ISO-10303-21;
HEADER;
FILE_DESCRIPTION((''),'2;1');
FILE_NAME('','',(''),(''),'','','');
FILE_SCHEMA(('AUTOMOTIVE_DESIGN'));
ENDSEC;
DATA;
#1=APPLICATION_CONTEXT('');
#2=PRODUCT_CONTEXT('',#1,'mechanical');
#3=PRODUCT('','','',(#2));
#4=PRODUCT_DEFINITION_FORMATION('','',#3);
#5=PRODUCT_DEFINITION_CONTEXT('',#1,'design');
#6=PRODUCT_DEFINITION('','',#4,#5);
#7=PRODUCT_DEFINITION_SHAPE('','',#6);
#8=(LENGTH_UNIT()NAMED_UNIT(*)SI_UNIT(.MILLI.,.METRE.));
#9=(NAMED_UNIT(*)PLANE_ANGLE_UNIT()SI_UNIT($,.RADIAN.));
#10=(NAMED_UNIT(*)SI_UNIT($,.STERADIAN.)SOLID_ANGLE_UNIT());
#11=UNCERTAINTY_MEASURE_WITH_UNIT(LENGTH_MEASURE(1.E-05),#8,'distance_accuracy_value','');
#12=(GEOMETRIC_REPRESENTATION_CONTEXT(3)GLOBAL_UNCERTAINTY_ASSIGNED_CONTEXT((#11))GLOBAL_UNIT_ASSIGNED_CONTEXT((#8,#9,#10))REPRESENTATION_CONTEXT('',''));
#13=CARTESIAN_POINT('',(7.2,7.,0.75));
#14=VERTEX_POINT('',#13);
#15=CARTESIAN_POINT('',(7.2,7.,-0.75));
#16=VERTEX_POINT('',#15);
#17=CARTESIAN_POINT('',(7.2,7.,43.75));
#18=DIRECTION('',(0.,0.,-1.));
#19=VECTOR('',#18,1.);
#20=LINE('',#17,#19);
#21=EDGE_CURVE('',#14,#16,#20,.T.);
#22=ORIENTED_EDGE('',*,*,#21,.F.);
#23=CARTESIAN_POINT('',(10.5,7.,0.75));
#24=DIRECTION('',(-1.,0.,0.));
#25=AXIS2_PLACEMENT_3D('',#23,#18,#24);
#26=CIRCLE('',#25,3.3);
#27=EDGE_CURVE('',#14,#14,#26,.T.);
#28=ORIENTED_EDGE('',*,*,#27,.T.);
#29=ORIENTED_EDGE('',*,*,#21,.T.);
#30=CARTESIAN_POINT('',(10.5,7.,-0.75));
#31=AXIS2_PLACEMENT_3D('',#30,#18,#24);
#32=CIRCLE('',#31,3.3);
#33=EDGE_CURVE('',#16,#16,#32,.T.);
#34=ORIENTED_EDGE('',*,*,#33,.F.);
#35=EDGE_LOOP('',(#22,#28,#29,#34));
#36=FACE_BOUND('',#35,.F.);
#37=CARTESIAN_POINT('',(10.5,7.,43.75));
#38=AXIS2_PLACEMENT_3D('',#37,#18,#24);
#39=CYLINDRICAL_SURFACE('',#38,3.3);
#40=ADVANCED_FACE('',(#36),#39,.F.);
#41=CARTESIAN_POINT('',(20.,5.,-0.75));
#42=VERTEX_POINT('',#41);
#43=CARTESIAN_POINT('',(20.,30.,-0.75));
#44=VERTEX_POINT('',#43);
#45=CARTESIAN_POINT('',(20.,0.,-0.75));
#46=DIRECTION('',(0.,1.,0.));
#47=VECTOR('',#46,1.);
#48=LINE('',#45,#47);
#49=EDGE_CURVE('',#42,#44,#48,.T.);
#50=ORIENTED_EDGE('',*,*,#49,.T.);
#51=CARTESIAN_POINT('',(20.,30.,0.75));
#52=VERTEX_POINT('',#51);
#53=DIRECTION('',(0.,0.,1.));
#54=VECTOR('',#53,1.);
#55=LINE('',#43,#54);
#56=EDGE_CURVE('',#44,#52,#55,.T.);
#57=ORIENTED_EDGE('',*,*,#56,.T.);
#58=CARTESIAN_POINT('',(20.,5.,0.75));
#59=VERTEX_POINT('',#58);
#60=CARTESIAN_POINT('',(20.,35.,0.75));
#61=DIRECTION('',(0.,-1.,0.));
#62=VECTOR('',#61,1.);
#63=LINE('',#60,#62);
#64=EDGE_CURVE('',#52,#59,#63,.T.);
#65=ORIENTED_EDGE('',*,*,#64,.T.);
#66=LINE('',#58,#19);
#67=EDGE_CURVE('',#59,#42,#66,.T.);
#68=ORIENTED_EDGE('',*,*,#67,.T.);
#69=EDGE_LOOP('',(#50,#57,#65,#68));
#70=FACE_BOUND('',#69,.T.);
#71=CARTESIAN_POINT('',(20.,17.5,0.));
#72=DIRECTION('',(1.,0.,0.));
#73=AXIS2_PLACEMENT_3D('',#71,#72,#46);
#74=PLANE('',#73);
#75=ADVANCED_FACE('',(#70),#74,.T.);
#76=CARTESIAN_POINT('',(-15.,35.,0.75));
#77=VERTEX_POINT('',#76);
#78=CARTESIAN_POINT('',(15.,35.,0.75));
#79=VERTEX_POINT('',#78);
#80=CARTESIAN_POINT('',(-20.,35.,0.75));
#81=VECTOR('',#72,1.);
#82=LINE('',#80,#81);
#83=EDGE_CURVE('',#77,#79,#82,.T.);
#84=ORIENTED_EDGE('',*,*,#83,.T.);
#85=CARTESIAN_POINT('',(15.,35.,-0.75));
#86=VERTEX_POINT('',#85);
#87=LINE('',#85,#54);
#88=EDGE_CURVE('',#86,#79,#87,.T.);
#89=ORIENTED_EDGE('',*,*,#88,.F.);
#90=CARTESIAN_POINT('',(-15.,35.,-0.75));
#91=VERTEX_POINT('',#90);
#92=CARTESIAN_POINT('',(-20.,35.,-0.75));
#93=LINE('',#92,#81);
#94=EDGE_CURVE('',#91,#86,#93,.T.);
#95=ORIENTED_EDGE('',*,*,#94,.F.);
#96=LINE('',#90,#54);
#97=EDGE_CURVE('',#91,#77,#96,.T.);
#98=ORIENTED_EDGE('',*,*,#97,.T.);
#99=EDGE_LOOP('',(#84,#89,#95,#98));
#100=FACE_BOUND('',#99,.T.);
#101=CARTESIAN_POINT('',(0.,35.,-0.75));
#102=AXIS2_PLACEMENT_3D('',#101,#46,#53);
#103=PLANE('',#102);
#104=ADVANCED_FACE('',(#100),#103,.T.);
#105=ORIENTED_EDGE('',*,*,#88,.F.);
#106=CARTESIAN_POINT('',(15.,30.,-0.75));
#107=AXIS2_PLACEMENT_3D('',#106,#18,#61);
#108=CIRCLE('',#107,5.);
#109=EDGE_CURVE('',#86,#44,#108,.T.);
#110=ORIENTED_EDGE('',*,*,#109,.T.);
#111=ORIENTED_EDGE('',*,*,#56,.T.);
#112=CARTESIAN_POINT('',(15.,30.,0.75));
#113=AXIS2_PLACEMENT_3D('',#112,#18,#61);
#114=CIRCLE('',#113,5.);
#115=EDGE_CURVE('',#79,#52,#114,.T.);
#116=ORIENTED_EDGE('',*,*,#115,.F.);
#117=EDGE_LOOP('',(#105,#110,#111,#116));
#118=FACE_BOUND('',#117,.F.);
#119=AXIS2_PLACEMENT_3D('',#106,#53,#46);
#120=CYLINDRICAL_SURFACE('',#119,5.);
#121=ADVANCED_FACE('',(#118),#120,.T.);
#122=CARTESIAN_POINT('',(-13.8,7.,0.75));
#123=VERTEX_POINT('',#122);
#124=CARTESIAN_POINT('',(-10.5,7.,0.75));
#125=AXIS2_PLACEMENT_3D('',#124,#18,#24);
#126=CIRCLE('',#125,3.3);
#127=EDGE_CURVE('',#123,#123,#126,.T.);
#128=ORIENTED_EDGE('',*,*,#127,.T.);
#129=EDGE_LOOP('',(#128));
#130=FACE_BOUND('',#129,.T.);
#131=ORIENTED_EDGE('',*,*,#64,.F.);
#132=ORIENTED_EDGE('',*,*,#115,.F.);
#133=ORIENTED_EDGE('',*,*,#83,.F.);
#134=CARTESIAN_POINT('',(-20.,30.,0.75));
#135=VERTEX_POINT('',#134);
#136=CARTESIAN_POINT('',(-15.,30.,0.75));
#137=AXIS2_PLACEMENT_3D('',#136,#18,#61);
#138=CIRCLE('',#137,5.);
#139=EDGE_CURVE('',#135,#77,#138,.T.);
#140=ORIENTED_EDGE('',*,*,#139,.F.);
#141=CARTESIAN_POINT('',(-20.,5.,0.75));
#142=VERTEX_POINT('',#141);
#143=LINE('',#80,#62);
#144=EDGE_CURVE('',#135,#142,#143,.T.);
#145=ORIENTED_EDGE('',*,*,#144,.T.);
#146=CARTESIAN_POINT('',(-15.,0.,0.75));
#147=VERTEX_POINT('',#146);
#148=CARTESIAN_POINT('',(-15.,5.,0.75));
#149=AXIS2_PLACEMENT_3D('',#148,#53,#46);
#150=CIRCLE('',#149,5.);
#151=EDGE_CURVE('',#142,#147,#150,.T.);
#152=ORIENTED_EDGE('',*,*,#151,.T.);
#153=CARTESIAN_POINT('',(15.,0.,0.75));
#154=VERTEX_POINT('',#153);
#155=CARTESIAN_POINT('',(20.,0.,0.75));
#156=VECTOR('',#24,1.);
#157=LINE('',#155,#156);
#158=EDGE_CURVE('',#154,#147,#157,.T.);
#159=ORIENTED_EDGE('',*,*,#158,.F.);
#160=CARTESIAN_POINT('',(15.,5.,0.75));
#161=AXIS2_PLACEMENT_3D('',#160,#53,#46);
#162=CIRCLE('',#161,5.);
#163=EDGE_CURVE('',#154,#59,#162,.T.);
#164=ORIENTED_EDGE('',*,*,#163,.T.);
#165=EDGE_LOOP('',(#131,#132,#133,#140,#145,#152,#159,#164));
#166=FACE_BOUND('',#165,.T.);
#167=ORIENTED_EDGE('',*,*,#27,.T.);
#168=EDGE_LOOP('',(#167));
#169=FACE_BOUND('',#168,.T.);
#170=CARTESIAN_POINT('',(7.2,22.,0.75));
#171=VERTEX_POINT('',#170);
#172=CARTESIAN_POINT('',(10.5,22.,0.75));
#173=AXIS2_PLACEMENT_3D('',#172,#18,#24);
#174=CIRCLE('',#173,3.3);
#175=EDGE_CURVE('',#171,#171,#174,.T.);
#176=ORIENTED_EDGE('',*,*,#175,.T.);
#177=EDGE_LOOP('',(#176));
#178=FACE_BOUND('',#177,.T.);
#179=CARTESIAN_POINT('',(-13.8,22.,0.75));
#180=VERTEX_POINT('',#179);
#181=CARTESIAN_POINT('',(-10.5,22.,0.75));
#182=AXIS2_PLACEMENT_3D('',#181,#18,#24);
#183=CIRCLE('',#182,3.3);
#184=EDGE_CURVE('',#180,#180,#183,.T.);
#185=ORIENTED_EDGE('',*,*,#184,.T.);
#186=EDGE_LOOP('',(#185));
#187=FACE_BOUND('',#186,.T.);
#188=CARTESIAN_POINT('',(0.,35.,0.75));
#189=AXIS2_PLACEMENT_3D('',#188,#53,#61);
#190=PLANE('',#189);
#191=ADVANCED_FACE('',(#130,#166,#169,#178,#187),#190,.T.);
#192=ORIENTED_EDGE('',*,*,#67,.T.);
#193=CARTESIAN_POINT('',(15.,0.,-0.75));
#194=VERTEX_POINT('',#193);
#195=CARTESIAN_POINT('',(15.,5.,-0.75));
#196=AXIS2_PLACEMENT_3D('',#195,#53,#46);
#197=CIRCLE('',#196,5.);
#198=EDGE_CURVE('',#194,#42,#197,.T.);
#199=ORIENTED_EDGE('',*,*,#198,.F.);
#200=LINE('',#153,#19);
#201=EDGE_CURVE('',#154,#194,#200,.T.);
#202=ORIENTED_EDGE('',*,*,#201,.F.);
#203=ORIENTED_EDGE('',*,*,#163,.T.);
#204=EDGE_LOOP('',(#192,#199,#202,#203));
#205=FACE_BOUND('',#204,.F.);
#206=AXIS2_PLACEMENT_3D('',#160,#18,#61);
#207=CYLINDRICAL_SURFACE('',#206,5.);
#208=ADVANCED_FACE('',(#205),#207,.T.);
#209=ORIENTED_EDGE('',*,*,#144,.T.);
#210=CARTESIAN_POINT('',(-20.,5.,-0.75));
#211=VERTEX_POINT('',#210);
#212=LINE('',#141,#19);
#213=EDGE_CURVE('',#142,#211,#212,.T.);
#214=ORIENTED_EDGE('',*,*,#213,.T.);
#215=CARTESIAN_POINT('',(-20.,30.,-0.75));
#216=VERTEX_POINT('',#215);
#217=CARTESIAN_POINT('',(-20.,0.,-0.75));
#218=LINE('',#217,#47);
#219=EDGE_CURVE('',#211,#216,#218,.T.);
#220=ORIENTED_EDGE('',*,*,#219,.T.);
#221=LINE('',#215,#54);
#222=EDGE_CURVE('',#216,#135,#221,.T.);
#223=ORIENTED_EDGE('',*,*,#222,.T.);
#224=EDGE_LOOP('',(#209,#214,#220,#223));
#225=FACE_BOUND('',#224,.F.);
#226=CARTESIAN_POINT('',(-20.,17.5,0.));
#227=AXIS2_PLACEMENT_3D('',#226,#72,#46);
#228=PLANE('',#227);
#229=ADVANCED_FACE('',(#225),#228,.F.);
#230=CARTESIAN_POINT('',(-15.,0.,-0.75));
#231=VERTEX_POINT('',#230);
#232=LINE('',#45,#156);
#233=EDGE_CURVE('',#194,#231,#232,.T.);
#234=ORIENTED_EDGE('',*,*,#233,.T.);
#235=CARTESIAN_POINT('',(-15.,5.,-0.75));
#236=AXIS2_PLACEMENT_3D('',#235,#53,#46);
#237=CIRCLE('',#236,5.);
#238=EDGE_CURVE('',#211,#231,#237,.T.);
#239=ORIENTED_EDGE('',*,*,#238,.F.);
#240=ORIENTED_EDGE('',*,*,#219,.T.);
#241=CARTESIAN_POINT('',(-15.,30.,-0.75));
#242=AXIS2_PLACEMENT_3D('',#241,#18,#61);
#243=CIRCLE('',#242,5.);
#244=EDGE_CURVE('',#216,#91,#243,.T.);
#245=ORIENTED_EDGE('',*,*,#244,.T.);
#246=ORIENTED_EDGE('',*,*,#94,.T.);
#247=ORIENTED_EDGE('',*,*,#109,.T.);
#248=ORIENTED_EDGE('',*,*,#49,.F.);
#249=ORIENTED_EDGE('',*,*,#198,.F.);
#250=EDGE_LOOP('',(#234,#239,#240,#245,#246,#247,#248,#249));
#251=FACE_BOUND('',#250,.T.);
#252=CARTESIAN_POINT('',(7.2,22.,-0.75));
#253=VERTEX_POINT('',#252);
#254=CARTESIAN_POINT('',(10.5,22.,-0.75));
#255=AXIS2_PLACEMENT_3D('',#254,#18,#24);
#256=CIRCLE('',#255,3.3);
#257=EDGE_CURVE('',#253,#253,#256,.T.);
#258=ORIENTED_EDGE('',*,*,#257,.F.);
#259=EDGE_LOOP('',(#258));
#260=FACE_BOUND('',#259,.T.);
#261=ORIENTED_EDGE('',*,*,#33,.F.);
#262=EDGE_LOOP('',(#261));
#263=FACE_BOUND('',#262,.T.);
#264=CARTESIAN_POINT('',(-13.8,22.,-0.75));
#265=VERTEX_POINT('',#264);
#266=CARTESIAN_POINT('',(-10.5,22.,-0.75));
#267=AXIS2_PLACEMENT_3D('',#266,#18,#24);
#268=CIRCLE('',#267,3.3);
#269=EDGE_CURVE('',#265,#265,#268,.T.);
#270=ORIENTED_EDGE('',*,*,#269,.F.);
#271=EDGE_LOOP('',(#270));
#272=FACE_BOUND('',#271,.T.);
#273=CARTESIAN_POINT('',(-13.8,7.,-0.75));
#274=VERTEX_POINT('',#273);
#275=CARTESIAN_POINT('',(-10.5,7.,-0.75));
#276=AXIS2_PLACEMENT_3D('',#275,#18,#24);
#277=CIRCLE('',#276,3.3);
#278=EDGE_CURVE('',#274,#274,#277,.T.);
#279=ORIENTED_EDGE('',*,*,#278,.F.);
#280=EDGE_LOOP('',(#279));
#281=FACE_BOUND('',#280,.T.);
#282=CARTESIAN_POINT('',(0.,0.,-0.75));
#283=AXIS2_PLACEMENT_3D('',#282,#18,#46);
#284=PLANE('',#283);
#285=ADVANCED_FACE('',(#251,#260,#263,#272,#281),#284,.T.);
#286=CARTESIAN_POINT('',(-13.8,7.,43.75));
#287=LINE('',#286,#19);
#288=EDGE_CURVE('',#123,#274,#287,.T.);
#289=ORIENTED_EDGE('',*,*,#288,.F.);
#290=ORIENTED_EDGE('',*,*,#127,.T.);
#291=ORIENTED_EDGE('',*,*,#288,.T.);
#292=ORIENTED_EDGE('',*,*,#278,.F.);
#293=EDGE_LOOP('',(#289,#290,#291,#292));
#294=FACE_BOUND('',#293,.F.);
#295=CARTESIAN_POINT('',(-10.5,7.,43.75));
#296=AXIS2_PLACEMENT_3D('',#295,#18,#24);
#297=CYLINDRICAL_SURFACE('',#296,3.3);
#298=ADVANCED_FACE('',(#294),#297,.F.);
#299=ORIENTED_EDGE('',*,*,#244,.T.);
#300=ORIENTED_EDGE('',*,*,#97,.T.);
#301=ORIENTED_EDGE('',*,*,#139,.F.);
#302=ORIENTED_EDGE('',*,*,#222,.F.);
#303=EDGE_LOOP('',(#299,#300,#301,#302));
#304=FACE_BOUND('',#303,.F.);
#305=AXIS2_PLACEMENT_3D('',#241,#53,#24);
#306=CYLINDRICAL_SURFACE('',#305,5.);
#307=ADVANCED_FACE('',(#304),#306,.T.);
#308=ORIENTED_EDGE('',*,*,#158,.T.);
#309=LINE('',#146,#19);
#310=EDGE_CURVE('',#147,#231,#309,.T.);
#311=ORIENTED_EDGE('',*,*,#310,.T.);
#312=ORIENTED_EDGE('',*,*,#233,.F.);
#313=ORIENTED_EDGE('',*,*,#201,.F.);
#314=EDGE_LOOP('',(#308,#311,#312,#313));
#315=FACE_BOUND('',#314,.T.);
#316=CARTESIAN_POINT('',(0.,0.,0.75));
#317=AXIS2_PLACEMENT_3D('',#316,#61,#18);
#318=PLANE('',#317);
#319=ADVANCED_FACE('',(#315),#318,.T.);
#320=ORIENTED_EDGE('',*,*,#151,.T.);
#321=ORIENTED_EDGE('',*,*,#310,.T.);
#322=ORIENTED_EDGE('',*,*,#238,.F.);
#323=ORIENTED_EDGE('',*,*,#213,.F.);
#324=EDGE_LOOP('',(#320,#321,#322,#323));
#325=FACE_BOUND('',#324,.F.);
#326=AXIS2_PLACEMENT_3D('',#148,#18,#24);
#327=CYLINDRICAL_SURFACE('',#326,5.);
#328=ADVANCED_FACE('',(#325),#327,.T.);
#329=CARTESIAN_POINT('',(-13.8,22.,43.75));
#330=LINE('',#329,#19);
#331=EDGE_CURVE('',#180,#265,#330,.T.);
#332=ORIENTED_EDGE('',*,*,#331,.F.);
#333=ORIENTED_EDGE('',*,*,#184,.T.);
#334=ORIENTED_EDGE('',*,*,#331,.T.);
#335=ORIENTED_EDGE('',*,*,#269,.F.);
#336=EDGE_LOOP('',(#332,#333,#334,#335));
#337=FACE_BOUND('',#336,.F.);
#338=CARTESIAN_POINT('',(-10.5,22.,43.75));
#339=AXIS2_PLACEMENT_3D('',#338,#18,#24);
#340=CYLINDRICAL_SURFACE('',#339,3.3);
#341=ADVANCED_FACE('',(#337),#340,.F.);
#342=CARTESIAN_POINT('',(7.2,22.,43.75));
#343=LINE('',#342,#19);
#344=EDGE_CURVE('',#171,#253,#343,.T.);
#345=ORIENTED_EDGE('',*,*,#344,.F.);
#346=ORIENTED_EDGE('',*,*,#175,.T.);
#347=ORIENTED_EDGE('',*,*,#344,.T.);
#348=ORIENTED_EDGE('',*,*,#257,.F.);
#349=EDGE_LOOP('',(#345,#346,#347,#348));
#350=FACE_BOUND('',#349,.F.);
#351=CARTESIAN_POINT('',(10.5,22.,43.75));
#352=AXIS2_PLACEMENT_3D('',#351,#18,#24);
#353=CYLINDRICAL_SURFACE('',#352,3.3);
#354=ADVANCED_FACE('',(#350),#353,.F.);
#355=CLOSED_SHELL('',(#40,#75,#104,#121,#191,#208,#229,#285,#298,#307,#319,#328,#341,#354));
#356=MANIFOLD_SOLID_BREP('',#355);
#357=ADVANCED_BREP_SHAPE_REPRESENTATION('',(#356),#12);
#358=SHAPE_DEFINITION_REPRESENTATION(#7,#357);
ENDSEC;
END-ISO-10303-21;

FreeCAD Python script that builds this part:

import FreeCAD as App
import Part
import Sketcher


def edges_at(feature, points):
    """Names of the edges that pass closest to the given points."""
    edges = feature.Shape.Edges
    near = lambda p: min(range(len(edges)), key=lambda i: edges[i].distToShape(Part.Vertex(*p))[0])
    return sorted({f"Edge{near(p) + 1}" for p in points})

doc = App.newDocument("Part")
params = doc.addObject("Spreadsheet::Sheet", "Params")
for row, (alias, value) in enumerate([
    ("sketch1_width", "35 mm"),
    ("sketch1_height", "1.5 mm"),
    ("pad1_length", "40 mm"),
    ("sketch2_diameter", "6.6 mm"),
    ("hole_diameter", "6.6 mm"),
    ("hole_depth", "43 mm"),
    ("fillet_radius", "5 mm"),
], start=1):
    params.set(f"A{row}", alias)
    params.set(f"B{row}", "=" + value)
    params.setAlias(f"B{row}", alias)

body = doc.addObject("PartDesign::Body", "Body")

# Sketch on YZ plane
sketch1 = body.newObject("Sketcher::SketchObject", "Sketch")
sketch1.AttachmentSupport = (doc.getObject("YZ_Plane"), [""])
sketch1.MapMode = "FlatFace"
sketch1.addGeometry([
    Part.LineSegment(App.Vector(0, -0.75, 0), App.Vector(35, -0.75, 0)),
    Part.LineSegment(App.Vector(35, -0.75, 0), App.Vector(35, 0.75, 0)),
    Part.LineSegment(App.Vector(35, 0.75, 0), App.Vector(0, 0.75, 0)),
    Part.LineSegment(App.Vector(0, 0.75, 0), App.Vector(0, -0.75, 0)),
], False)
sketch1.addConstraint([
    Sketcher.Constraint("Coincident", 0, 2, 1, 1),
    Sketcher.Constraint("Coincident", 1, 2, 2, 1),
    Sketcher.Constraint("Coincident", 2, 2, 3, 1),
    Sketcher.Constraint("Coincident", 3, 2, 0, 1),
    Sketcher.Constraint("Horizontal", 0),
    Sketcher.Constraint("Vertical", 1),
    Sketcher.Constraint("Horizontal", 2),
    Sketcher.Constraint("Vertical", 3),
    Sketcher.Constraint("Symmetric", 2, 2, 3, 2, -1, 1),
    Sketcher.Constraint("DistanceX", 0, 1, 0, 2, 35.0),
    Sketcher.Constraint("DistanceY", 1, 1, 1, 2, 1.5),
])
sketch1.setExpression("Constraints[9]", "Params.sketch1_width")
sketch1.setExpression("Constraints[10]", "Params.sketch1_height")
pad1 = body.newObject("PartDesign::Pad", "Pad")
pad1.Profile = sketch1
pad1.setExpression("Length", "Params.pad1_length")
pad1.Midplane = True

# Sketch on XY plane
sketch2 = body.newObject("Sketcher::SketchObject", "Sketch001")
sketch2.AttachmentSupport = (doc.getObject("XY_Plane"), [""])
sketch2.MapMode = "FlatFace"
sketch2.AttachmentOffset = App.Placement(App.Vector(0, 0, 0.75), App.Rotation())
sketch2.addGeometry([
    Part.Circle(App.Vector(-10.5, 7, 0), App.Vector(0, 0, 1), 3.3),
    Part.Circle(App.Vector(10.5, 7, 0), App.Vector(0, 0, 1), 3.3),
    Part.Circle(App.Vector(10.5, 22, 0), App.Vector(0, 0, 1), 3.3),
    Part.Circle(App.Vector(-10.5, 22, 0), App.Vector(0, 0, 1), 3.3),
], False)
sketch2.addConstraint([
    Sketcher.Constraint("Equal", 0, 1),
    Sketcher.Constraint("Equal", 1, 2),
    Sketcher.Constraint("Equal", 2, 3),
    Sketcher.Constraint("Symmetric", 0, 3, 1, 3, -2),
    Sketcher.Constraint("Symmetric", 2, 3, 3, 3, -2),
    Sketcher.Constraint("Vertical", 1, 3, 2, 3),
    Sketcher.Constraint("Diameter", 0, 6.6),
    Sketcher.Constraint("DistanceY", -1, 1, 0, 3, 7.0),
    Sketcher.Constraint("DistanceY", -1, 1, 2, 3, 22.0),
    Sketcher.Constraint("DistanceX", 0, 3, 1, 3, 21.0),
])
sketch2.setExpression("Constraints[6]", "Params.sketch2_diameter")
doc.recompute()
hole = body.newObject("PartDesign::Hole", "Hole")
hole.Profile = sketch2
hole.ThreadType = "None"
hole.setExpression("Diameter", "Params.hole_diameter")
hole.DepthType = "Dimension"
hole.setExpression("Depth", "Params.hole_depth")
hole.DrillPoint = "Angled"
hole.DrillPointAngle = 118
doc.recompute()

fillet = body.newObject("PartDesign::Fillet", "Fillet")
fillet.Base = (hole, edges_at(hole, [
    (20, 0, 0),
    (-20, 0, 0),
    (20, 35, 0),
    (-20, 35, 0),
]))
fillet.setExpression("Radius", "Params.fillet_radius")

doc.recompute()
